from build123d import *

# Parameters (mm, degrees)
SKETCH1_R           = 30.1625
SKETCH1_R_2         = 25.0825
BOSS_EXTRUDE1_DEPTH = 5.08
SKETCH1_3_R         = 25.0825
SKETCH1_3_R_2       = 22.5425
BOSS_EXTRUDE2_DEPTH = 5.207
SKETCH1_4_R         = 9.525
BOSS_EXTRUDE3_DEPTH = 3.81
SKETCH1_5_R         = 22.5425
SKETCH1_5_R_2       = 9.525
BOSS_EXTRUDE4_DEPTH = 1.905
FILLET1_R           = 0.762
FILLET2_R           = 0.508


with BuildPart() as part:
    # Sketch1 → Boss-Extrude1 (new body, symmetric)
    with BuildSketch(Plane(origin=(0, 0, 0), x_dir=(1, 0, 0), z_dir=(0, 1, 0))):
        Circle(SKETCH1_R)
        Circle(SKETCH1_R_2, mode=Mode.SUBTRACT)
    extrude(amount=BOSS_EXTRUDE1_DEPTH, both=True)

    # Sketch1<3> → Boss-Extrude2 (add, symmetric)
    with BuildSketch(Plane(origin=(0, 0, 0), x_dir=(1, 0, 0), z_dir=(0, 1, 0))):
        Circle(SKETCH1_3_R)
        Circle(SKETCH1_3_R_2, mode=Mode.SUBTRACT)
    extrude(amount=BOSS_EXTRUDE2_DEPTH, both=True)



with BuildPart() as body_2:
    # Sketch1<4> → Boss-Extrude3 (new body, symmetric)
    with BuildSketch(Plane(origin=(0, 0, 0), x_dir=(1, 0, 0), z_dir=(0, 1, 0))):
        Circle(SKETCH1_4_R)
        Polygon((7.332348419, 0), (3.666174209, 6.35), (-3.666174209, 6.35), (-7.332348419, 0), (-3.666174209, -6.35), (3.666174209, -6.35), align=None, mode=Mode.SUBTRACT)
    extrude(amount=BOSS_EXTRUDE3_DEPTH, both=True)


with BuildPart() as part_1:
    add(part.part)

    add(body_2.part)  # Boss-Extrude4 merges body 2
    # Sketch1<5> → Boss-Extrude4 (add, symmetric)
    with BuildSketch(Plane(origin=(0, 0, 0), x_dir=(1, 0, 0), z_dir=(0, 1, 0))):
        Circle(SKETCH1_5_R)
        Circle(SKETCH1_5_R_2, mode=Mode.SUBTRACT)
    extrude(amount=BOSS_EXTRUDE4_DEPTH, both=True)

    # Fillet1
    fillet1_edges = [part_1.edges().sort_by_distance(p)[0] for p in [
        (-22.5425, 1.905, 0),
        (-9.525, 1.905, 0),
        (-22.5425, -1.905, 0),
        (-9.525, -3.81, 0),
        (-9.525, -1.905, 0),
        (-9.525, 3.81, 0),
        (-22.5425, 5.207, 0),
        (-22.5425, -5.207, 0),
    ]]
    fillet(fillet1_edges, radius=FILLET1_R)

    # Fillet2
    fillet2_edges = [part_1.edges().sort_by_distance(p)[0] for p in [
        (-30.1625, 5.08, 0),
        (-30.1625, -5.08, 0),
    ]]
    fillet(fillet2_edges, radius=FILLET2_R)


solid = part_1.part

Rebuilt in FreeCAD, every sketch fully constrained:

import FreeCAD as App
import Part
import Sketcher

V = App.Vector
Q = App.Units.Quantity


def edges_at(feature, points):
    """Names of the edges that pass closest to the given points."""
    edges = feature.Shape.Edges
    near = lambda p: min(range(len(edges)), key=lambda i: edges[i].distToShape(Part.Vertex(*p))[0])
    return sorted({f"Edge{near(p) + 1}" for p in points})


def add_polygon(sketch, points):
    """Adds a closed chain of lines whose ends are joined by coincident constraints."""
    first, n = sketch.GeometryCount, len(points)
    for a, b in zip(points, points[1:] + points[:1]):
        sketch.addGeometry(Part.LineSegment(App.Vector(*a, 0), App.Vector(*b, 0)), False)
    for i in range(n):
        sketch.addConstraint(Sketcher.Constraint("Coincident", first + i, 2, first + (i + 1) % n, 1))

doc = App.newDocument("Part")
body = doc.addObject("PartDesign::Body", "Body")

# Sketch on XZ plane
sketch1 = body.newObject("Sketcher::SketchObject", "Sketch")
sketch1.AttachmentSupport = (doc.getObject("XZ_Plane"), [""])
sketch1.MapMode = "FlatFace"
sketch1.addGeometry(Part.Circle(V(0, 0, 0), V(0, 0, 1), 30.1625), False)
sketch1.addGeometry(Part.Circle(V(0, 0, 0), V(0, 0, 1), 25.0825), False)
sketch1.addConstraint(Sketcher.Constraint("Coincident", 0, 3, -1, 1))
sketch1.addConstraint(Sketcher.Constraint("Coincident", 1, 3, -1, 1))
sketch1.addConstraint(Sketcher.Constraint("Diameter", 0, Q("2.375 in")))
sketch1.addConstraint(Sketcher.Constraint("Diameter", 1, Q("1.975 in")))
pad1 = body.newObject("PartDesign::Pad", "Pad")
pad1.Profile = sketch1
pad1.Length = Q("0.4 in")
pad1.Midplane = True

# Sketch on XZ plane
sketch2 = body.newObject("Sketcher::SketchObject", "Sketch001")
sketch2.AttachmentSupport = (doc.getObject("XZ_Plane"), [""])
sketch2.MapMode = "FlatFace"
sketch2.addGeometry(Part.Circle(V(0, 0, 0), V(0, 0, 1), 25.0825), False)
sketch2.addGeometry(Part.Circle(V(0, 0, 0), V(0, 0, 1), 22.5425), False)
sketch2.addConstraint(Sketcher.Constraint("Coincident", 0, 3, -1, 1))
sketch2.addConstraint(Sketcher.Constraint("Coincident", 1, 3, -1, 1))
sketch2.addConstraint(Sketcher.Constraint("Diameter", 0, Q("1.975 in")))
sketch2.addConstraint(Sketcher.Constraint("Diameter", 1, Q("1.775 in")))
pad2 = body.newObject("PartDesign::Pad", "Pad001")
pad2.Profile = sketch2
pad2.Length = Q("0.41 in")
pad2.Midplane = True
body2 = doc.addObject("PartDesign::Body", "Body001")

# Sketch on XZ plane
sketch3 = body2.newObject("Sketcher::SketchObject", "Sketch002")
sketch3.AttachmentSupport = (doc.getObject("XZ_Plane001"), [""])
sketch3.MapMode = "FlatFace"
sketch3.addGeometry(Part.Circle(V(0, 0, 0), V(0, 0, 1), 9.525), False)  # 0
add_polygon(sketch3, [(3.666174, -6.35), (7.332348, 0), (3.666174, 6.35), (-3.666174, 6.35), (-7.332348, 0), (-3.666174, -6.35)])  # lines 1-6
sketch3.addConstraint(Sketcher.Constraint("Horizontal", 3))
sketch3.addConstraint(Sketcher.Constraint("Horizontal", 6))
sketch3.addConstraint(Sketcher.Constraint("Coincident", 0, 3, -1, 1))
sketch3.addConstraint(Sketcher.Constraint("Symmetric", 1, 2, 4, 2, -1, 1))
sketch3.addConstraint(Sketcher.Constraint("Symmetric", 2, 2, 5, 2, -1, 1))
sketch3.addConstraint(Sketcher.Constraint("PointOnObject", 1, 2, -1))
sketch3.addConstraint(Sketcher.Constraint("Parallel", 1, 4))
sketch3.addConstraint(Sketcher.Constraint("Vertical", 3, 2, 5, 2))
sketch3.addConstraint(Sketcher.Constraint("Diameter", 0, Q("0.75 in")))
sketch3.addConstraint(Sketcher.Constraint("Angle", 1, Q("60 deg")))
sketch3.addConstraint(Sketcher.Constraint("DistanceY", 5, 2, 3, 2, Q("0.5 in")))
sketch3.addConstraint(Sketcher.Constraint("DistanceX", 3, 2, 3, 1, Q("7.332348 mm")))
pad3 = body2.newObject("PartDesign::Pad", "Pad002")
pad3.Profile = sketch3
pad3.Length = Q("0.3 in")
pad3.Midplane = True
body.AllowCompound = True
doc.recompute()

boolean = body.newObject("PartDesign::Boolean", "Boolean")
boolean.Type = "Fuse"
boolean.addObjects([body2])

# Sketch on XZ plane
sketch4 = body.newObject("Sketcher::SketchObject", "Sketch003")
sketch4.AttachmentSupport = (doc.getObject("XZ_Plane"), [""])
sketch4.MapMode = "FlatFace"
sketch4.addGeometry(Part.Circle(V(0, 0, 0), V(0, 0, 1), 22.5425), False)
sketch4.addGeometry(Part.Circle(V(0, 0, 0), V(0, 0, 1), 9.525), False)
sketch4.addConstraint(Sketcher.Constraint("Coincident", 0, 3, -1, 1))
sketch4.addConstraint(Sketcher.Constraint("Coincident", 1, 3, -1, 1))
sketch4.addConstraint(Sketcher.Constraint("Diameter", 1, Q("0.75 in")))
sketch4.addConstraint(Sketcher.Constraint("Diameter", 0, Q("1.775 in")))
pad4 = body.newObject("PartDesign::Pad", "Pad003")
pad4.Profile = sketch4
pad4.Length = Q("0.15 in")
pad4.Midplane = True
doc.recompute()

fillet = body.newObject("PartDesign::Fillet", "Fillet")
fillet.Base = (pad4, edges_at(pad4, [
    (-22.543, 1.905, 0),
    (-9.525, 1.905, 0),
    (-22.543, -1.905, 0),
    (-9.525, -3.81, 0),
    (-9.525, -1.905, 0),
    (-9.525, 3.81, 0),
    (-22.543, 5.207, 0),
    (-22.543, -5.207, 0),
]))
fillet.Radius = Q("0.03 in")
doc.recompute()

fillet2 = body.newObject("PartDesign::Fillet", "Fillet001")
fillet2.Base = (fillet, edges_at(fillet, [(-30.163, 5.08, 0), (-30.163, -5.08, 0)]))
fillet2.Radius = Q("0.02 in")

doc.recompute()
